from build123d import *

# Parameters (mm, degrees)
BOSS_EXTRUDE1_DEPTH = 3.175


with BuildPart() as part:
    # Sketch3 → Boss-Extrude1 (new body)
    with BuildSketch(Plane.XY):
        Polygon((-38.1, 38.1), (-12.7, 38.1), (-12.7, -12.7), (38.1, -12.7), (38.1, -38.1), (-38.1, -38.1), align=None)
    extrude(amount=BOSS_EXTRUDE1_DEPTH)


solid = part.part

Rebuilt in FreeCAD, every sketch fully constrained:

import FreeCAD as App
import Part
import Sketcher
Q = App.Units.Quantity


def add_polygon(sketch, points):
    """Adds a closed chain of lines whose ends are joined by coincident constraints."""
    first, n = sketch.GeometryCount, len(points)
    for a, b in zip(points, points[1:] + points[:1]):
        sketch.addGeometry(Part.LineSegment(App.Vector(*a, 0), App.Vector(*b, 0)), False)
    for i in range(n):
        sketch.addConstraint(Sketcher.Constraint("Coincident", first + i, 2, first + (i + 1) % n, 1))

doc = App.newDocument("Part")
body = doc.addObject("PartDesign::Body", "Body")

# Sketch on XY plane
sketch1 = body.newObject("Sketcher::SketchObject", "Sketch")
sketch1.AttachmentSupport = (doc.getObject("XY_Plane"), [""])
sketch1.MapMode = "FlatFace"
add_polygon(sketch1, [(-12.7, 38.1), (-38.1, 38.1), (-38.1, -38.1), (38.1, -38.1), (38.1, -12.7), (-12.7, -12.7)])  # lines 0-5
sketch1.addConstraint([
    Sketcher.Constraint("Horizontal", 0),
    Sketcher.Constraint("Vertical", 1),
    Sketcher.Constraint("Horizontal", 2),
    Sketcher.Constraint("Vertical", 3),
    Sketcher.Constraint("Horizontal", 4),
    Sketcher.Constraint("Vertical", 5),
    Sketcher.Constraint("Symmetric", 0, 2, 2, 2, -1, 1),
    Sketcher.Constraint("Equal", 2, 1),
    Sketcher.Constraint("Equal", 0, 3),
    Sketcher.Constraint("DistanceX", 0, 2, 0, 1, Q("1 in")),
    Sketcher.Constraint("DistanceX", 2, 1, 2, 2, Q("3 in")),
])
pad1 = body.newObject("PartDesign::Pad", "Pad")
pad1.Profile = sketch1
pad1.Length = Q("0.125 in")

doc.recompute()
